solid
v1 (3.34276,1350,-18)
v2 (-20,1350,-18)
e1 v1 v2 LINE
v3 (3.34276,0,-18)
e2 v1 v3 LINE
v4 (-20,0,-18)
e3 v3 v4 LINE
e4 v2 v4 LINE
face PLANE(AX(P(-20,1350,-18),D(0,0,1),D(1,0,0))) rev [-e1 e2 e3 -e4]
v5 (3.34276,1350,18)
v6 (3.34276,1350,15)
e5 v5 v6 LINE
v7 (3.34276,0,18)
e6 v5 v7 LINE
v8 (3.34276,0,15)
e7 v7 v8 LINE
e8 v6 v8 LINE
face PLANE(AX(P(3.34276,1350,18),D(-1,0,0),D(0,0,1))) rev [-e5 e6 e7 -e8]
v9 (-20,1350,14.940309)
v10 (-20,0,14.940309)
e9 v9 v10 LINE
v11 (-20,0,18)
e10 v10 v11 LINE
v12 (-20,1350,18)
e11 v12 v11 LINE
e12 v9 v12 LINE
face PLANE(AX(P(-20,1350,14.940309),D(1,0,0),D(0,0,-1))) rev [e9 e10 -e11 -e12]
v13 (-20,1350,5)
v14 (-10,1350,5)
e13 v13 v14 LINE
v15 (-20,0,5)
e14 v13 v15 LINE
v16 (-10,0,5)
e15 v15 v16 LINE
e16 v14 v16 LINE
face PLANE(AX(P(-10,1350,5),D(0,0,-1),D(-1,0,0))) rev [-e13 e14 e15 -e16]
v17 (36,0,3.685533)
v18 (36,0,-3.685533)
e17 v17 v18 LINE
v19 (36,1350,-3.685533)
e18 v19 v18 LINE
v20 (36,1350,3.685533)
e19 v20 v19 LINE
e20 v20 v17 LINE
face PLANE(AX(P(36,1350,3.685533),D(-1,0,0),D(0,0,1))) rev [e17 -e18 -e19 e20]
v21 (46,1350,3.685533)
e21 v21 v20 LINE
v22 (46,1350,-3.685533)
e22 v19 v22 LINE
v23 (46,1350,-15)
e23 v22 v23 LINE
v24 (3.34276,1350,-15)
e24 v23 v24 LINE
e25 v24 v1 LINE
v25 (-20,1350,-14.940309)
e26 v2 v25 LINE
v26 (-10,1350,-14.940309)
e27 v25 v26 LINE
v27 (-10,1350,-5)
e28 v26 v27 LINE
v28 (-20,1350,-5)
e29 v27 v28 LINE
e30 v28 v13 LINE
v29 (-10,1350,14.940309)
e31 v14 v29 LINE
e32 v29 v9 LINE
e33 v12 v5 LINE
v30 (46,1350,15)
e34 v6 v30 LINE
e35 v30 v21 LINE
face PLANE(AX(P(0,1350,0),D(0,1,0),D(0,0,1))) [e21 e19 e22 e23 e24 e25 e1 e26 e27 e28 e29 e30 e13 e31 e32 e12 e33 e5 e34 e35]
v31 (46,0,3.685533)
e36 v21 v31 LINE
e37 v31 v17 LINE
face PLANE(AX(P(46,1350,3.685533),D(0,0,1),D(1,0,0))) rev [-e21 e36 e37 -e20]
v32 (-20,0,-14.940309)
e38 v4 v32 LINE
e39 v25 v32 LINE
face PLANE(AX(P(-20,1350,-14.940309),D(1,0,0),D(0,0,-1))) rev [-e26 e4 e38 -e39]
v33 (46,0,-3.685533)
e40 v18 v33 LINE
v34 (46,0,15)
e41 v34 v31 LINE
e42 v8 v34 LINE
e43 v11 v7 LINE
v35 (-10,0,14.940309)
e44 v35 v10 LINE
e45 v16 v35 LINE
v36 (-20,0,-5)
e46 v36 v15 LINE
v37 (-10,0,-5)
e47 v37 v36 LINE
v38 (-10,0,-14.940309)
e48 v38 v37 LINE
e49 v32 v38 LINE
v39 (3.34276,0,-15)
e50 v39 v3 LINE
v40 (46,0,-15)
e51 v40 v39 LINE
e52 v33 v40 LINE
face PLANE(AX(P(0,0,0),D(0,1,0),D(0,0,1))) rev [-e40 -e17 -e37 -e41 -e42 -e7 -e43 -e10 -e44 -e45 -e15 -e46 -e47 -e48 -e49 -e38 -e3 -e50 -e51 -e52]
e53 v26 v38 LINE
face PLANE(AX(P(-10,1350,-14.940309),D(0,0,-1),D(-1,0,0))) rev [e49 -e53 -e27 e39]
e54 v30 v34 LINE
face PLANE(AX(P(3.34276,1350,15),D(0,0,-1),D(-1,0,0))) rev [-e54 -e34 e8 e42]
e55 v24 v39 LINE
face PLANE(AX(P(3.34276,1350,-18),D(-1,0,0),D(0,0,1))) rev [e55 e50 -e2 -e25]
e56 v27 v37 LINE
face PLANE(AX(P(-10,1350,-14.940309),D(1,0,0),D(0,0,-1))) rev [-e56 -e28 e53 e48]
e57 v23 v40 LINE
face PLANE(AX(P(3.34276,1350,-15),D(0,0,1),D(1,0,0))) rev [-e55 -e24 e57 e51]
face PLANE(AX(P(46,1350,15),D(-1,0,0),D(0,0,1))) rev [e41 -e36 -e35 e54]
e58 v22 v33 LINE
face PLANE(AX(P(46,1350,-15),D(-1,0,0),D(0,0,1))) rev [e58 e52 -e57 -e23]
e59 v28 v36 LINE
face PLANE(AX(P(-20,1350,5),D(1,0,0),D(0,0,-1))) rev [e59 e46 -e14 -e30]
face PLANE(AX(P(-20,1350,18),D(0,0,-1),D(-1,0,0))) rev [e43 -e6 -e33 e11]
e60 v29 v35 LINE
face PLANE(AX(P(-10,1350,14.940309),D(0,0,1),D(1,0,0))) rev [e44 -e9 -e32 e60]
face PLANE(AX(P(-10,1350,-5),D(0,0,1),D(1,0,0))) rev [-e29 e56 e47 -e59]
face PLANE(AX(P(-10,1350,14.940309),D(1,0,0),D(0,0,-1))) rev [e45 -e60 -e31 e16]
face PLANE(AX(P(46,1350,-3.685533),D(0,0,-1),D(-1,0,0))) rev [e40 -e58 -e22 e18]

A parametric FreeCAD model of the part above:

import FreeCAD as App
import Part
import Sketcher
Q = App.Units.Quantity

doc = App.newDocument("Part")
body = doc.addObject("PartDesign::Body", "Body")

# Sketch on XZ plane
sketch1 = doc.addObject("Sketcher::SketchObject", "Sketch")
body.addObject(sketch1)
sketch1.AttachmentSupport = (doc.XZ_Plane, [""])
sketch1.MapMode = "FlatFace"
sketch1.addGeometry(Part.LineSegment(App.Vector(-10, 5, 0), App.Vector(-10, 14.9, 0)), False)
sketch1.addGeometry(Part.LineSegment(App.Vector(-10, 14.9, 0), App.Vector(-20, 14.9, 0)), False)
sketch1.addGeometry(Part.LineSegment(App.Vector(-20, 14.9, 0), App.Vector(-20, 18, 0)), False)
sketch1.addGeometry(Part.LineSegment(App.Vector(-20, 18, 0), App.Vector(3.3, 18, 0)), False)
sketch1.addGeometry(Part.LineSegment(App.Vector(3.3, 18, 0), App.Vector(3.3, 15, 0)), False)
sketch1.addGeometry(Part.LineSegment(App.Vector(3.3, 15, 0), App.Vector(46, 15, 0)), False)
sketch1.addGeometry(Part.LineSegment(App.Vector(46, 15, 0), App.Vector(46, 3.7, 0)), False)
sketch1.addGeometry(Part.LineSegment(App.Vector(46, 3.7, 0), App.Vector(36, 3.7, 0)), False)
sketch1.addGeometry(Part.LineSegment(App.Vector(36, 3.7, 0), App.Vector(36, -3.7, 0)), False)
sketch1.addGeometry(Part.LineSegment(App.Vector(36, -3.7, 0), App.Vector(46, -3.7, 0)), False)
sketch1.addGeometry(Part.LineSegment(App.Vector(46, -3.7, 0), App.Vector(46, -15, 0)), False)
sketch1.addGeometry(Part.LineSegment(App.Vector(46, -15, 0), App.Vector(3.3, -15, 0)), False)
sketch1.addGeometry(Part.LineSegment(App.Vector(3.3, -15, 0), App.Vector(3.3, -18, 0)), False)
sketch1.addGeometry(Part.LineSegment(App.Vector(3.3, -18, 0), App.Vector(-20, -18, 0)), False)
sketch1.addGeometry(Part.LineSegment(App.Vector(-20, -18, 0), App.Vector(-20, -14.9, 0)), False)
sketch1.addGeometry(Part.LineSegment(App.Vector(-20, -14.9, 0), App.Vector(-10, -14.9, 0)), False)
sketch1.addGeometry(Part.LineSegment(App.Vector(-10, -14.9, 0), App.Vector(-10, -5, 0)), False)
sketch1.addGeometry(Part.LineSegment(App.Vector(-10, -5, 0), App.Vector(-20, -5, 0)), False)
sketch1.addGeometry(Part.LineSegment(App.Vector(-20, -5, 0), App.Vector(-20, 5, 0)), False)
sketch1.addGeometry(Part.LineSegment(App.Vector(-20, 5, 0), App.Vector(-10, 5, 0)), False)
sketch1.addConstraint(Sketcher.Constraint("Coincident", 0, 2, 1, 1))
sketch1.addConstraint(Sketcher.Constraint("Coincident", 1, 2, 2, 1))
sketch1.addConstraint(Sketcher.Constraint("Coincident", 2, 2, 3, 1))
sketch1.addConstraint(Sketcher.Constraint("Coincident", 3, 2, 4, 1))
sketch1.addConstraint(Sketcher.Constraint("Coincident", 4, 2, 5, 1))
sketch1.addConstraint(Sketcher.Constraint("Coincident", 5, 2, 6, 1))
sketch1.addConstraint(Sketcher.Constraint("Coincident", 6, 2, 7, 1))
sketch1.addConstraint(Sketcher.Constraint("Coincident", 7, 2, 8, 1))
sketch1.addConstraint(Sketcher.Constraint("Coincident", 8, 2, 9, 1))
sketch1.addConstraint(Sketcher.Constraint("Coincident", 9, 2, 10, 1))
sketch1.addConstraint(Sketcher.Constraint("Coincident", 10, 2, 11, 1))
sketch1.addConstraint(Sketcher.Constraint("Coincident", 11, 2, 12, 1))
sketch1.addConstraint(Sketcher.Constraint("Coincident", 12, 2, 13, 1))
sketch1.addConstraint(Sketcher.Constraint("Coincident", 13, 2, 14, 1))
sketch1.addConstraint(Sketcher.Constraint("Coincident", 14, 2, 15, 1))
sketch1.addConstraint(Sketcher.Constraint("Coincident", 15, 2, 16, 1))
sketch1.addConstraint(Sketcher.Constraint("Coincident", 16, 2, 17, 1))
sketch1.addConstraint(Sketcher.Constraint("Coincident", 17, 2, 18, 1))
sketch1.addConstraint(Sketcher.Constraint("Coincident", 18, 2, 19, 1))
sketch1.addConstraint(Sketcher.Constraint("Coincident", 19, 2, 0, 1))
sketch1.addConstraint(Sketcher.Constraint("Vertical", 0))
sketch1.addConstraint(Sketcher.Constraint("Horizontal", 1))
sketch1.addConstraint(Sketcher.Constraint("Vertical", 2))
sketch1.addConstraint(Sketcher.Constraint("Horizontal", 3))
sketch1.addConstraint(Sketcher.Constraint("Vertical", 4))
sketch1.addConstraint(Sketcher.Constraint("Horizontal", 5))
sketch1.addConstraint(Sketcher.Constraint("Vertical", 6))
sketch1.addConstraint(Sketcher.Constraint("Horizontal", 7))
sketch1.addConstraint(Sketcher.Constraint("Vertical", 8))
sketch1.addConstraint(Sketcher.Constraint("Horizontal", 9))
sketch1.addConstraint(Sketcher.Constraint("Vertical", 10))
sketch1.addConstraint(Sketcher.Constraint("Horizontal", 11))
sketch1.addConstraint(Sketcher.Constraint("Vertical", 12))
sketch1.addConstraint(Sketcher.Constraint("Horizontal", 13))
sketch1.addConstraint(Sketcher.Constraint("Vertical", 14))
sketch1.addConstraint(Sketcher.Constraint("Horizontal", 15))
sketch1.addConstraint(Sketcher.Constraint("Vertical", 16))
sketch1.addConstraint(Sketcher.Constraint("Horizontal", 17))
sketch1.addConstraint(Sketcher.Constraint("Vertical", 18))
sketch1.addConstraint(Sketcher.Constraint("Horizontal", 19))
sketch1.addConstraint(Sketcher.Constraint("Symmetric", 6, 2, 9, 2, -1))
sketch1.addConstraint(Sketcher.Constraint("Symmetric", 4, 2, 11, 2, -1))
sketch1.addConstraint(Sketcher.Constraint("Symmetric", 2, 2, 13, 2, -1))
sketch1.addConstraint(Sketcher.Constraint("Symmetric", 0, 2, 15, 2, -1))
sketch1.addConstraint(Sketcher.Constraint("Vertical", 14, 2, 17, 2))
sketch1.addConstraint(Sketcher.Constraint("Equal", 1, 7))
sketch1.addConstraint(Sketcher.Constraint("Equal", 0, 16))
sketch1.addConstraint(Sketcher.Constraint("Equal", 19, 18))
sketch1.addConstraint(Sketcher.Constraint("DistanceX", 1, 2, 1, 1, Q("10 mm")))
sketch1.addConstraint(Sketcher.Constraint("DistanceY", 4, 2, 4, 1, Q("3 mm")))
sketch1.addConstraint(Sketcher.Constraint("DistanceX", 0, 2, -1, 1, Q("10 mm")))
sketch1.addConstraint(Sketcher.Constraint("DistanceY", -1, 1, 2, 2, Q("18 mm")))
sketch1.addConstraint(Sketcher.Constraint("DistanceX", -1, 1, 5, 2, Q("46 mm")))
sketch1.addConstraint(Sketcher.Constraint("DistanceX", 3, 1, 3, 2, Q("23.34276 mm")))
sketch1.addConstraint(Sketcher.Constraint("DistanceY", 0, 1, 0, 2, Q("9.940309 mm")))
sketch1.addConstraint(Sketcher.Constraint("DistanceY", 6, 2, 6, 1, Q("11.314467 mm")))
pad1 = doc.addObject("PartDesign::Pad", "Pad")
body.addObject(pad1)
pad1.Profile = sketch1
pad1.Length = 1350
pad1.Reversed = True

doc.recompute()
